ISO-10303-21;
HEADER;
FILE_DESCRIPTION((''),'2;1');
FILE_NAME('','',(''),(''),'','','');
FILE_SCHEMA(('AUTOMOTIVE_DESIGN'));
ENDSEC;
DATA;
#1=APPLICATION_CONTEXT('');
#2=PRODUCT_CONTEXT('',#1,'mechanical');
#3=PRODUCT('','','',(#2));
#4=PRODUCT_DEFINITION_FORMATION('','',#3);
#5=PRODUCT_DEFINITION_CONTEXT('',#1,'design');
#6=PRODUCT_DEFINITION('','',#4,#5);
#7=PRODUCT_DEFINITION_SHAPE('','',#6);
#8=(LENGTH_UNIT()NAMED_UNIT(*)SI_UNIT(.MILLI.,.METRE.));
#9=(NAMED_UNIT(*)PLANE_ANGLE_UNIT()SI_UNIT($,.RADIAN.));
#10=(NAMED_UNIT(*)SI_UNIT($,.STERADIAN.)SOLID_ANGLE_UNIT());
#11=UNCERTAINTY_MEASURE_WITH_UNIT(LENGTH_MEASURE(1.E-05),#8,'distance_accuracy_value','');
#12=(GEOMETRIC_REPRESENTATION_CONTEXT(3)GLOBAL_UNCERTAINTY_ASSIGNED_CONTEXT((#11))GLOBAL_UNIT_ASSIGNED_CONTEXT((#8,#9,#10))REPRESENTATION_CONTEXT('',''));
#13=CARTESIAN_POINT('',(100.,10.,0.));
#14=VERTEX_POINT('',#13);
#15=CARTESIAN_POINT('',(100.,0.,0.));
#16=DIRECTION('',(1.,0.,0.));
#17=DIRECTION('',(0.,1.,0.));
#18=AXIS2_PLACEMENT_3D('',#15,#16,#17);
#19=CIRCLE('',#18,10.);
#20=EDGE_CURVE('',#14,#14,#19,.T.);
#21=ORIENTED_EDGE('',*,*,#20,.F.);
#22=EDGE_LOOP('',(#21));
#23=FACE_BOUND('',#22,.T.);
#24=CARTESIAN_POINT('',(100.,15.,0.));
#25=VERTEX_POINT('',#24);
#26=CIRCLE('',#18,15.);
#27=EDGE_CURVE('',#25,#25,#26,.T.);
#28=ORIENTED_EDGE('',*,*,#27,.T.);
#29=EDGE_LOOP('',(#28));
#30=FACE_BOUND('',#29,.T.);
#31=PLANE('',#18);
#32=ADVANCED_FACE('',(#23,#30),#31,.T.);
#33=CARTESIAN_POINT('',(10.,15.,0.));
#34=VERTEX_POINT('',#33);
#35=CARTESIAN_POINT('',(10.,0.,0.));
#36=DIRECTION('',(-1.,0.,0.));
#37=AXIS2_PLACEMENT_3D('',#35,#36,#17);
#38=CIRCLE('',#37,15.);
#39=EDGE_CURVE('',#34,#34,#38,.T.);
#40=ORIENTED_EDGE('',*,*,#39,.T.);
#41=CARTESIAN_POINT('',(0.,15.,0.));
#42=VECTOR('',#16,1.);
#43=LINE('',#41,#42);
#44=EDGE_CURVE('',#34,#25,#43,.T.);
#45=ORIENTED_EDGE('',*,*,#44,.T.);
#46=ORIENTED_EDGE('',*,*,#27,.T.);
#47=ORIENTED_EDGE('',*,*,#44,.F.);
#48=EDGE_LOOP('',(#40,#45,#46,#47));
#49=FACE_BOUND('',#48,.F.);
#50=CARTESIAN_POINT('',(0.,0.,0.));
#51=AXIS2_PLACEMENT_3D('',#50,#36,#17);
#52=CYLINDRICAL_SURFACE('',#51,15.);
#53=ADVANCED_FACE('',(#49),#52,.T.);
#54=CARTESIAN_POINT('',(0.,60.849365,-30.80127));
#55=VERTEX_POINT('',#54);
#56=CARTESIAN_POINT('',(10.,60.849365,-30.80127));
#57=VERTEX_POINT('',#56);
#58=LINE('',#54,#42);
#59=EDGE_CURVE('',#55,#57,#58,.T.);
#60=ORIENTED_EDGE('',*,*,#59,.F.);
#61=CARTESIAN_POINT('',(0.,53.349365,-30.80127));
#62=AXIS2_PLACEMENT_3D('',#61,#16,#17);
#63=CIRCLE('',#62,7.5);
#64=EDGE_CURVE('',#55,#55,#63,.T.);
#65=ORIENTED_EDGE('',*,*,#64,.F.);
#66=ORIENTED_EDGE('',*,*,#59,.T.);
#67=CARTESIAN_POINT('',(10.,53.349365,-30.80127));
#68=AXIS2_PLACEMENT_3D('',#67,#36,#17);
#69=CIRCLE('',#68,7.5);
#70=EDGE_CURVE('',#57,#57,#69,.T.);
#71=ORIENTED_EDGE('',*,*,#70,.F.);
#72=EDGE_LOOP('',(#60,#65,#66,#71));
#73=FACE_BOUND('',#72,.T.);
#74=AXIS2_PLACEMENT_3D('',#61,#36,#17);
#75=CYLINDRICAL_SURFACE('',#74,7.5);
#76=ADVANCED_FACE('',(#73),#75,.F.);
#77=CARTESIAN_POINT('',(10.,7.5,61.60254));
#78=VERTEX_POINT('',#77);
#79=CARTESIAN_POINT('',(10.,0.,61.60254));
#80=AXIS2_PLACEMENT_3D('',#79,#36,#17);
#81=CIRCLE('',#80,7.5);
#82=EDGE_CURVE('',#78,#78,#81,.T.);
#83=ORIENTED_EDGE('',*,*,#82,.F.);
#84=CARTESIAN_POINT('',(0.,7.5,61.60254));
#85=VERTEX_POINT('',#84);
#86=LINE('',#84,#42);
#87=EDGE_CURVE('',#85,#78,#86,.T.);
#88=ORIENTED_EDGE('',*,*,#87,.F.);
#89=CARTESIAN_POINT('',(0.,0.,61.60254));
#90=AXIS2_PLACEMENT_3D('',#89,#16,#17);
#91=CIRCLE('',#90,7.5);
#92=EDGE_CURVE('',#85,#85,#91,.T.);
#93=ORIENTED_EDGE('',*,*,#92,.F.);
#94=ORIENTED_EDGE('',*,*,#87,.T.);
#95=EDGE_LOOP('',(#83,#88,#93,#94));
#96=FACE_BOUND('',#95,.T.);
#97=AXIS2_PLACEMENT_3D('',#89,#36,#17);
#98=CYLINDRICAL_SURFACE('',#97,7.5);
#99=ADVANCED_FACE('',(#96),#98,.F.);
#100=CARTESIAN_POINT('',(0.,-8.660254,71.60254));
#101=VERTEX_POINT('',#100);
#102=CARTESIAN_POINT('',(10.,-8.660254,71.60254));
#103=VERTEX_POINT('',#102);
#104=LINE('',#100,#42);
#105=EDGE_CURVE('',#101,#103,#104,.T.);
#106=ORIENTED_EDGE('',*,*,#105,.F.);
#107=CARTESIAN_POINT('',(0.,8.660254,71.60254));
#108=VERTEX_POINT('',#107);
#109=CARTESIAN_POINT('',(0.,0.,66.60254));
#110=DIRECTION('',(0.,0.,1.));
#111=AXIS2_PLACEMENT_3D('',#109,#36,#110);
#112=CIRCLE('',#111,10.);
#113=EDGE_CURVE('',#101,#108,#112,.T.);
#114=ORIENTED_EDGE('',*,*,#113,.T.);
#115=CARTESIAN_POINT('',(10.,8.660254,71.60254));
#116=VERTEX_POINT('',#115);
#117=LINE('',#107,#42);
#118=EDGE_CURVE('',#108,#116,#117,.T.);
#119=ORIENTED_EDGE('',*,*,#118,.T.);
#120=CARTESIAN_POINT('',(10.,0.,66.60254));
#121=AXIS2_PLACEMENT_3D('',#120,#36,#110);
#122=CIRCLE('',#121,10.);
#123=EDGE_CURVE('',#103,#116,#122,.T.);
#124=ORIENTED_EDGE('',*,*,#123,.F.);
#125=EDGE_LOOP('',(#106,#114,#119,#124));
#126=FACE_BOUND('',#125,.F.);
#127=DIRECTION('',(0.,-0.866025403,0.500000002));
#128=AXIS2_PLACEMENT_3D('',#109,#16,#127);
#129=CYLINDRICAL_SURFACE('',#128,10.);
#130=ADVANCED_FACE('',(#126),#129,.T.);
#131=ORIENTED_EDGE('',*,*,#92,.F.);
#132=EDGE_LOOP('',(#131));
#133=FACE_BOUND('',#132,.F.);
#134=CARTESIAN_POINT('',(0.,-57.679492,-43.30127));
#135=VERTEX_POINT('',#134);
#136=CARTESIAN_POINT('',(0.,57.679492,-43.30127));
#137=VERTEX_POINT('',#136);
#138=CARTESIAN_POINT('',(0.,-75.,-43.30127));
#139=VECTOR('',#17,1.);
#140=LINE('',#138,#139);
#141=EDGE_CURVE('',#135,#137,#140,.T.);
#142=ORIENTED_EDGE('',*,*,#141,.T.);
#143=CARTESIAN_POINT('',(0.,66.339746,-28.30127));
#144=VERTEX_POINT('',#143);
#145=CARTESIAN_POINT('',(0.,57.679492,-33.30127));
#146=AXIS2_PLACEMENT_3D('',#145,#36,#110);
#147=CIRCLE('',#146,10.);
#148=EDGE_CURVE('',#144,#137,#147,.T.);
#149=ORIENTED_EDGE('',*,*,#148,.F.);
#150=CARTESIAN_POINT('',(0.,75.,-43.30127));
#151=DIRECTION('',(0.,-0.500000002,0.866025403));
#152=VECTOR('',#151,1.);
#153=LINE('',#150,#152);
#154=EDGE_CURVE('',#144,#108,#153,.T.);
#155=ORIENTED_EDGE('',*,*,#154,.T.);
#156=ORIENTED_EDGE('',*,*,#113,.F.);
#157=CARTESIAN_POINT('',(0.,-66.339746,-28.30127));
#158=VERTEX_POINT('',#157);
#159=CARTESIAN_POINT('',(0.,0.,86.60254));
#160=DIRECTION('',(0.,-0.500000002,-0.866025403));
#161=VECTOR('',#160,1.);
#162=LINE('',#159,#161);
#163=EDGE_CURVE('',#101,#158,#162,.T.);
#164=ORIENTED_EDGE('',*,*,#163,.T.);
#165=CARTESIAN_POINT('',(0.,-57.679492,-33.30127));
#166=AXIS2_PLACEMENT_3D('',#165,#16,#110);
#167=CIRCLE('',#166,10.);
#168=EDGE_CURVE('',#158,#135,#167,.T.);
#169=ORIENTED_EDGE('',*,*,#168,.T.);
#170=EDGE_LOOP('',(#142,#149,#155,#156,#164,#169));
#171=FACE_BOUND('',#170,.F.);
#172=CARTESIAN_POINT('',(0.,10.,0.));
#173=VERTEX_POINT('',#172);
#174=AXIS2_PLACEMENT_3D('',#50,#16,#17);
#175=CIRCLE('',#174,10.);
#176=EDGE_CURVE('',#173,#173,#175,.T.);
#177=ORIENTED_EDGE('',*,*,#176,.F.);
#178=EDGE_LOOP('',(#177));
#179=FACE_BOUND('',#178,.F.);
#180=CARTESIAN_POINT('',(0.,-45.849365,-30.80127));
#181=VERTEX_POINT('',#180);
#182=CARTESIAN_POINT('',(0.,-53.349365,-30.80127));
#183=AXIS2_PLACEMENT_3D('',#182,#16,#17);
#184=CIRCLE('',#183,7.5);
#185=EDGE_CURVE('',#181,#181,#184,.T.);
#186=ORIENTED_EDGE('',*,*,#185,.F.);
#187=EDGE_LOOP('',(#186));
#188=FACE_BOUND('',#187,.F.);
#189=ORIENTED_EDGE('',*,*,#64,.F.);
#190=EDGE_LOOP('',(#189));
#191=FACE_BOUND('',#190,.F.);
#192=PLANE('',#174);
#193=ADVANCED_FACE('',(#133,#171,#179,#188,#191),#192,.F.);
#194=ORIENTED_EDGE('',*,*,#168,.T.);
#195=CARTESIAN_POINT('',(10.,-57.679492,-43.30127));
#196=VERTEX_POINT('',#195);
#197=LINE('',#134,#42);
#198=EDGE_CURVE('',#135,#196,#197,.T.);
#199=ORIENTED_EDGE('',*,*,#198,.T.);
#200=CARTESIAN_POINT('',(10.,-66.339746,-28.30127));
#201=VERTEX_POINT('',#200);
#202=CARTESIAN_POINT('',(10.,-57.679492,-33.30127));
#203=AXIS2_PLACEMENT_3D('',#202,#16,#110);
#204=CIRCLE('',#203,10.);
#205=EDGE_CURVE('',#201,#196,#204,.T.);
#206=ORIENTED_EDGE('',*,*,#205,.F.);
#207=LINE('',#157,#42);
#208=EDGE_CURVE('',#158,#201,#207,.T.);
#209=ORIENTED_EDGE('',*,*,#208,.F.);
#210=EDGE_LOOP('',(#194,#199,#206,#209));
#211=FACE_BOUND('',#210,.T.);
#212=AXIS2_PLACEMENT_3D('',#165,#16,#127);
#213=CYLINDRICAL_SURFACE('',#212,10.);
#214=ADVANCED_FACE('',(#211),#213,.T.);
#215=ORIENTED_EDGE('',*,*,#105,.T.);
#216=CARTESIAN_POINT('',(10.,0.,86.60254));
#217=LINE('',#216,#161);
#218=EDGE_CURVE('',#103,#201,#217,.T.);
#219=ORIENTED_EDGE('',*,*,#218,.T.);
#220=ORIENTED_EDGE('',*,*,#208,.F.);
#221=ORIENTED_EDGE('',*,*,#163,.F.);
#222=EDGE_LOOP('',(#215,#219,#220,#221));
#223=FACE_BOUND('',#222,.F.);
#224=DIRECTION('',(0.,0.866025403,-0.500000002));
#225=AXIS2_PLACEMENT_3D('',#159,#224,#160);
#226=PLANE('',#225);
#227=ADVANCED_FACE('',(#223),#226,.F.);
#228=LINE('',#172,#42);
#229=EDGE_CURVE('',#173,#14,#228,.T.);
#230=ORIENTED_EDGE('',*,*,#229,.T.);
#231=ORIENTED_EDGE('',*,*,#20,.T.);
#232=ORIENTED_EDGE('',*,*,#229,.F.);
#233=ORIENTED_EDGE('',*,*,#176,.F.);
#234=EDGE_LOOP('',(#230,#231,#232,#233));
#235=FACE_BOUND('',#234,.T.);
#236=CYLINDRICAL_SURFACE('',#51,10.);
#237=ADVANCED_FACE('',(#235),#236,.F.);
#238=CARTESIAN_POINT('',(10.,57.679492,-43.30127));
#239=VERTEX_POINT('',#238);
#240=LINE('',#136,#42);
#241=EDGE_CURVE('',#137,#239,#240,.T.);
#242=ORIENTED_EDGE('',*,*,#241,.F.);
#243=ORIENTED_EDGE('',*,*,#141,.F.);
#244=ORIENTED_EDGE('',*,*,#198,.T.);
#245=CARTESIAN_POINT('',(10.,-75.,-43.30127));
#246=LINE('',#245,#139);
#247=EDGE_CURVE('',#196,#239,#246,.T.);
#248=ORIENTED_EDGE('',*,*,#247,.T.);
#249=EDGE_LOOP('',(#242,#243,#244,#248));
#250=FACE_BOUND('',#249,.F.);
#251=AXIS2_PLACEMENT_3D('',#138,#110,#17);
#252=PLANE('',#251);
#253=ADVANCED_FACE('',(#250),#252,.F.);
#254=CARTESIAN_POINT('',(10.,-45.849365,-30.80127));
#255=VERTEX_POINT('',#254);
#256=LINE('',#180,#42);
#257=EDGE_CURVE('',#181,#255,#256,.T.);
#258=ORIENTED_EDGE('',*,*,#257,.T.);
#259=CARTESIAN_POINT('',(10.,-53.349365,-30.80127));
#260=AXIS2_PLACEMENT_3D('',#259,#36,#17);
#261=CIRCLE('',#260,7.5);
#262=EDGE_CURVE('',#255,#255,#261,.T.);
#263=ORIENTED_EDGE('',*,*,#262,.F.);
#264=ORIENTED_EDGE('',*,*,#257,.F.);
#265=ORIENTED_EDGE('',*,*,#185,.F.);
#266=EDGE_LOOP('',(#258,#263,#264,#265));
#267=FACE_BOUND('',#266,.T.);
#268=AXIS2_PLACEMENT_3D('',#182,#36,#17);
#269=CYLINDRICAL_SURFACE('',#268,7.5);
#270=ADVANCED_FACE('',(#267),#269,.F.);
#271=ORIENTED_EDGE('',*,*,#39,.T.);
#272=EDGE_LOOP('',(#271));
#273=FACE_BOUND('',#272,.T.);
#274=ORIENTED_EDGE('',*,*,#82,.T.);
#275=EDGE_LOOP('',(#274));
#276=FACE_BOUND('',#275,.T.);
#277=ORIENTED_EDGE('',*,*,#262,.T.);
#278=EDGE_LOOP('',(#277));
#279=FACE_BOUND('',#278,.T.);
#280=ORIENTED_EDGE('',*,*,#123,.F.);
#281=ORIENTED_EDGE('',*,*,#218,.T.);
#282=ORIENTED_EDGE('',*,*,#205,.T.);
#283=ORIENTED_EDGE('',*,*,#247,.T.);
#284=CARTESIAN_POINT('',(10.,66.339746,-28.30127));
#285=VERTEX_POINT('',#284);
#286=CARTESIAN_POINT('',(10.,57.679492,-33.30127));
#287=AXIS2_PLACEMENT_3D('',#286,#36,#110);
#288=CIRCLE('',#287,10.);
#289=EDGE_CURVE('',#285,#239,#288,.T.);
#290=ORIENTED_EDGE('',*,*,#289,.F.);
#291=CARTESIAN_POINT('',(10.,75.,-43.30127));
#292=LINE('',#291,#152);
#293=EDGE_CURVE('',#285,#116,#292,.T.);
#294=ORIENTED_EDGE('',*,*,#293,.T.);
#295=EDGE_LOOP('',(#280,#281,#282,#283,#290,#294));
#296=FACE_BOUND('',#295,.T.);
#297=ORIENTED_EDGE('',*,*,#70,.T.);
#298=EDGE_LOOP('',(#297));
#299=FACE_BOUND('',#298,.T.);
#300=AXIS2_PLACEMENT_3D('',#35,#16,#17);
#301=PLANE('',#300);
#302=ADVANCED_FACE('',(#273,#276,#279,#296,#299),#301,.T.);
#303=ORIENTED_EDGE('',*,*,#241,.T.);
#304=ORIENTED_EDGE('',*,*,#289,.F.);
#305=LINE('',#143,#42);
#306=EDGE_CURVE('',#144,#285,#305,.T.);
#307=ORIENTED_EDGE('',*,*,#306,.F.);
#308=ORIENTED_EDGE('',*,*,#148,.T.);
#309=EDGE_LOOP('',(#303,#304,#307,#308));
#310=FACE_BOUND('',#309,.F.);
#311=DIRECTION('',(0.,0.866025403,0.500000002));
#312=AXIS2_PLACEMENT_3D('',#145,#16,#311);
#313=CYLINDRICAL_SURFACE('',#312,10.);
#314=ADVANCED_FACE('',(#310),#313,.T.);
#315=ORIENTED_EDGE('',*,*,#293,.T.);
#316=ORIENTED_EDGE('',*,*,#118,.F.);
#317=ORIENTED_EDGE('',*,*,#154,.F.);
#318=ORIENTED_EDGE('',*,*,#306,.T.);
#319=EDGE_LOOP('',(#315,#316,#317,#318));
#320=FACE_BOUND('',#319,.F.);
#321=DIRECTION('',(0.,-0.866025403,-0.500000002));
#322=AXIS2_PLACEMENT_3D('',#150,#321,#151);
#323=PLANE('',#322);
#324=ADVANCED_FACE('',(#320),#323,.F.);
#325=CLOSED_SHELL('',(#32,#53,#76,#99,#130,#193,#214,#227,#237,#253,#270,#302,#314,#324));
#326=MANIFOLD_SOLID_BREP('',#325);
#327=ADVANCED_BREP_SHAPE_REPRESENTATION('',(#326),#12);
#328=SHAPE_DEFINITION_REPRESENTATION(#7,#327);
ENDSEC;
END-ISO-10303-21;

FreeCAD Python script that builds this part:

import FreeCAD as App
import Part
import Sketcher
from FreeCAD import Vector
Q = App.Units.Quantity


def edges_at(feature, points):
    """Names of the edges that pass closest to the given points."""
    edges = feature.Shape.Edges
    near = lambda p: min(range(len(edges)), key=lambda i: edges[i].distToShape(Part.Vertex(*p))[0])
    return sorted({f"Edge{near(p) + 1}" for p in points})

doc = App.newDocument("Part")
body = doc.addObject("PartDesign::Body", "Body")

# Sketch on YZ plane
sketch1 = body.newObject("Sketcher::SketchObject", "Sketch")
sketch1.AttachmentSupport = (doc.getObject("YZ_Plane"), [""])
sketch1.MapMode = "FlatFace"
sketch1.addGeometry(Part.Circle(Vector(0, 0, 0), Vector(0, 0, 1), 15), False)
sketch1.addGeometry(Part.Circle(Vector(0, 0, 0), Vector(0, 0, 1), 10), False)
sketch1.addConstraint(Sketcher.Constraint("Coincident", 0, 3, -1, 1))
sketch1.addConstraint(Sketcher.Constraint("Coincident", 1, 3, -1, 1))
sketch1.addConstraint(Sketcher.Constraint("Diameter", 0, 30.0))
sketch1.addConstraint(Sketcher.Constraint("Diameter", 1, 20.0))
pad1 = body.newObject("PartDesign::Pad", "Pad")
pad1.Profile = sketch1
pad1.Length = 100

# Sketch on YZ plane
sketch2 = body.newObject("Sketcher::SketchObject", "Sketch001")
sketch2.AttachmentSupport = (doc.getObject("YZ_Plane"), [""])
sketch2.MapMode = "FlatFace"
sketch2.addGeometry(Part.LineSegment(Vector(0, 87, 0), Vector(-75, -43, 0)), False)
sketch2.addGeometry(Part.LineSegment(Vector(-75, -43, 0), Vector(75, -43, 0)), False)
sketch2.addGeometry(Part.LineSegment(Vector(75, -43, 0), Vector(0, 87, 0)), False)
sketch2.addConstraint(Sketcher.Constraint("Coincident", 0, 2, 1, 1))
sketch2.addConstraint(Sketcher.Constraint("Coincident", 1, 2, 2, 1))
sketch2.addConstraint(Sketcher.Constraint("Coincident", 2, 2, 0, 1))
sketch2.addConstraint(Sketcher.Constraint("Horizontal", 1))
sketch2.addConstraint(Sketcher.Constraint("PointOnObject", 2, 2, -2))
sketch2.addConstraint(Sketcher.Constraint("Equal", 0, 2))
sketch2.addConstraint(Sketcher.Constraint("DistanceX", 1, 1, 1, 2, 150.0))
sketch2.addConstraint(Sketcher.Constraint("Angle", 0, Q("-120 deg")))
sketch2.addConstraint(Sketcher.Constraint("DistanceY", 0, 2, -1, 1, 43.30127))
pad2 = body.newObject("PartDesign::Pad", "Pad001")
pad2.Profile = sketch2
pad2.Length = 10
doc.recompute()

fillet = body.newObject("PartDesign::Fillet", "Fillet")
fillet.Base = (pad2, edges_at(pad2, [(5, 0, 86.603), (5, 75, -43.301), (5, -75, -43.301)]))
fillet.Radius = 10

# Sketch on YZ plane
sketch3 = body.newObject("Sketcher::SketchObject", "Sketch002")
sketch3.AttachmentSupport = (doc.getObject("YZ_Plane"), [""])
sketch3.MapMode = "FlatFace"
sketch3.addGeometry(Part.Circle(Vector(0, 62, 0), Vector(0, 0, 1), 8), False)
sketch3.addGeometry(Part.Circle(Vector(53, -31, 0), Vector(0, 0, 1), 8), False)
sketch3.addGeometry(Part.Circle(Vector(-53, -31, 0), Vector(0, 0, 1), 8), False)
sketch3.addGeometry(Part.Circle(Vector(0, 0, 0), Vector(0, 0, 1), 10), False)
sketch3.addConstraint(Sketcher.Constraint("Coincident", 3, 3, -1, 1))
sketch3.addConstraint(Sketcher.Constraint("Equal", 0, 1))
sketch3.addConstraint(Sketcher.Constraint("Equal", 1, 2))
sketch3.addConstraint(Sketcher.Constraint("Symmetric", 1, 3, 2, 3, -2))
sketch3.addConstraint(Sketcher.Constraint("PointOnObject", 0, 3, -2))
sketch3.addConstraint(Sketcher.Constraint("Diameter", 0, 15.0))
sketch3.addConstraint(Sketcher.Constraint("Diameter", 3, 20.0))
sketch3.addConstraint(Sketcher.Constraint("DistanceY", -1, 1, 0, 3, 61.60254))
sketch3.addConstraint(Sketcher.Constraint("DistanceY", 1, 3, -1, 1, 30.80127))
sketch3.addConstraint(Sketcher.Constraint("DistanceX", 2, 3, 1, 3, 106.69873))
pocket1 = body.newObject("PartDesign::Pocket", "Pocket")
pocket1.Profile = sketch3
pocket1.Type = "ThroughAll"
pocket1.Reversed = True

doc.recompute()
